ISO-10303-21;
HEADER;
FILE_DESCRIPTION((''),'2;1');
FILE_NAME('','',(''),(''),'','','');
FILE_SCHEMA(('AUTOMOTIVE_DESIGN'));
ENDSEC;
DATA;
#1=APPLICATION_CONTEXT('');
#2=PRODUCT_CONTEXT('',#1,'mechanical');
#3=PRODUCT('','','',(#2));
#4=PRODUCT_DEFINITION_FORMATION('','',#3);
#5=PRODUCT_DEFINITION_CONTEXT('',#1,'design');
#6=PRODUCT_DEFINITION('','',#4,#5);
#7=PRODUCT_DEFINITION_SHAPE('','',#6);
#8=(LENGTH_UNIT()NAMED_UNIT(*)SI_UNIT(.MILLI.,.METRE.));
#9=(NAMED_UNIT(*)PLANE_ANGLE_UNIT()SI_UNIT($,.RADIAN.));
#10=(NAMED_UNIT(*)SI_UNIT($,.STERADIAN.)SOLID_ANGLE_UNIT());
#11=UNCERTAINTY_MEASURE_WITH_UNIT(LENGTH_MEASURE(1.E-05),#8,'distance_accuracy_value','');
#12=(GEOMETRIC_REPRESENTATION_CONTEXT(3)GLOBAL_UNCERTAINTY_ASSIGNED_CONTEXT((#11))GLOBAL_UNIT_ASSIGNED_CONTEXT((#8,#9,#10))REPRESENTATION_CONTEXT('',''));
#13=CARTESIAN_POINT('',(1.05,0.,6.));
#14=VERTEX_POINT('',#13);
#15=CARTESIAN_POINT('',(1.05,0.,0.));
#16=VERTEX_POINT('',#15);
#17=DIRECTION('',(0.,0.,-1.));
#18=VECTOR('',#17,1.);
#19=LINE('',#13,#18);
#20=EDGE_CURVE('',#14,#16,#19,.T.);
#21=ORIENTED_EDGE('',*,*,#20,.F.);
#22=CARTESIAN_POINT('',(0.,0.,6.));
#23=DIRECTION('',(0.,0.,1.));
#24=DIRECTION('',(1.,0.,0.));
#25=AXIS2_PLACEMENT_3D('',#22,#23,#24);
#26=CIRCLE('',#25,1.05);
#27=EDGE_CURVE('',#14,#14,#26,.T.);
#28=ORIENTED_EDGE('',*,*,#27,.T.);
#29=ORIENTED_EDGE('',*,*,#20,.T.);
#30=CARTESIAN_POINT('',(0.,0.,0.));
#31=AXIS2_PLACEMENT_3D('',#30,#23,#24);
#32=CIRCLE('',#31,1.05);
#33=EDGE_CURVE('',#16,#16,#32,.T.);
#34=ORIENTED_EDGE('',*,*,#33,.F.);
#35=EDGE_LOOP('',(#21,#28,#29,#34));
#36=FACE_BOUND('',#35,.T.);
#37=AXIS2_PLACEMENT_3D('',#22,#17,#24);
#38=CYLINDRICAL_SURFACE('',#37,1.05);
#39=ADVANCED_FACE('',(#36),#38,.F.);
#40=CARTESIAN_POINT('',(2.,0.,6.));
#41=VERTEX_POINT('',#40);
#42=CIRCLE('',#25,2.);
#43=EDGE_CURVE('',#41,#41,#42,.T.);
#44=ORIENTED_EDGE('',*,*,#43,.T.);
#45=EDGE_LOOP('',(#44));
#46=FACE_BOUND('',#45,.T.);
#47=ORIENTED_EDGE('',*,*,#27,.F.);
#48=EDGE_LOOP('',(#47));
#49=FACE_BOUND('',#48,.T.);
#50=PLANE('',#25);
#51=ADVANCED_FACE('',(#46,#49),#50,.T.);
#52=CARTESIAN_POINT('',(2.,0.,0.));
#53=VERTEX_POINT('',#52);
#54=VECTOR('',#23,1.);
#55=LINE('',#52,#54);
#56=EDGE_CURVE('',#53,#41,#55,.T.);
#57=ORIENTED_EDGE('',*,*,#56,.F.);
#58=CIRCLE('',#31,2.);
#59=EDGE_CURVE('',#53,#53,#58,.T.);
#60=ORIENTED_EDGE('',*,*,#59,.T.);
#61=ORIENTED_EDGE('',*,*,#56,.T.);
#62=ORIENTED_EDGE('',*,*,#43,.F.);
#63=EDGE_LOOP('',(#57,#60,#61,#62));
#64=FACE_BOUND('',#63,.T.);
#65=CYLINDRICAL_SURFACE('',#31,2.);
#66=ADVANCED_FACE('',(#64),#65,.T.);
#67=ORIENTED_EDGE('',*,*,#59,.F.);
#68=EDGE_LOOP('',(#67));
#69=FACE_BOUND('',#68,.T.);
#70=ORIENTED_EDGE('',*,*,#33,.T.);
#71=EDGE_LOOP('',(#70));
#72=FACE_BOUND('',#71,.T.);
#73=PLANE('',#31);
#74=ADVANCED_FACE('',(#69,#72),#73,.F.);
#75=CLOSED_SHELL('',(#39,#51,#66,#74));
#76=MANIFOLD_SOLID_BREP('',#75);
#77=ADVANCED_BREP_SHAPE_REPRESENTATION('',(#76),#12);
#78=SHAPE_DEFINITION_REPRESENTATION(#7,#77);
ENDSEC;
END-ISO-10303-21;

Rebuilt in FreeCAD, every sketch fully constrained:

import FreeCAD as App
import Part
import Sketcher
from FreeCAD import Vector

doc = App.newDocument("Part")
params = doc.addObject("Spreadsheet::Sheet", "Params")
for row, (alias, value) in enumerate([
    ("sketch1_height", "6 mm"),
    ("sketch1_width", "0.95 mm"),
    ("revolution_angle", "360 deg"),
], start=1):
    params.set(f"A{row}", alias)
    params.set(f"B{row}", "=" + value)
    params.setAlias(f"B{row}", alias)

body = doc.addObject("PartDesign::Body", "Body")

# Sketch on XZ plane
sketch1 = body.newObject("Sketcher::SketchObject", "Sketch")
sketch1.AttachmentSupport = (doc.getObject("XZ_Plane"), [""])
sketch1.MapMode = "FlatFace"
sketch1.addGeometry([
    Part.LineSegment(Vector(2, 0, 0), Vector(1.1, 0, 0)),
    Part.LineSegment(Vector(1.1, 0, 0), Vector(1.1, 6, 0)),
    Part.LineSegment(Vector(1.1, 6, 0), Vector(2, 6, 0)),
    Part.LineSegment(Vector(2, 6, 0), Vector(2, 0, 0)),
], False)
sketch1.addConstraint([
    Sketcher.Constraint("Coincident", 0, 2, 1, 1),
    Sketcher.Constraint("Coincident", 1, 2, 2, 1),
    Sketcher.Constraint("Coincident", 2, 2, 3, 1),
    Sketcher.Constraint("Coincident", 3, 2, 0, 1),
    Sketcher.Constraint("Horizontal", 0),
    Sketcher.Constraint("Vertical", 1),
    Sketcher.Constraint("Horizontal", 2),
    Sketcher.Constraint("Vertical", 3),
    Sketcher.Constraint("PointOnObject", 0, 2, -1),
    Sketcher.Constraint("DistanceY", 1, 1, 1, 2, 6.0),
    Sketcher.Constraint("DistanceX", -1, 1, 2, 2, 2.0),
    Sketcher.Constraint("DistanceX", 0, 2, 0, 1, 0.95),
])
sketch1.setExpression("Constraints[9]", "Params.sketch1_height")
sketch1.setExpression("Constraints[11]", "Params.sketch1_width")
revolution = body.newObject("PartDesign::Revolution", "Revolution")
revolution.Profile = sketch1
revolution.ReferenceAxis = (sketch1, ["V_Axis"])
revolution.setExpression("Angle", "Params.revolution_angle")

doc.recompute()
